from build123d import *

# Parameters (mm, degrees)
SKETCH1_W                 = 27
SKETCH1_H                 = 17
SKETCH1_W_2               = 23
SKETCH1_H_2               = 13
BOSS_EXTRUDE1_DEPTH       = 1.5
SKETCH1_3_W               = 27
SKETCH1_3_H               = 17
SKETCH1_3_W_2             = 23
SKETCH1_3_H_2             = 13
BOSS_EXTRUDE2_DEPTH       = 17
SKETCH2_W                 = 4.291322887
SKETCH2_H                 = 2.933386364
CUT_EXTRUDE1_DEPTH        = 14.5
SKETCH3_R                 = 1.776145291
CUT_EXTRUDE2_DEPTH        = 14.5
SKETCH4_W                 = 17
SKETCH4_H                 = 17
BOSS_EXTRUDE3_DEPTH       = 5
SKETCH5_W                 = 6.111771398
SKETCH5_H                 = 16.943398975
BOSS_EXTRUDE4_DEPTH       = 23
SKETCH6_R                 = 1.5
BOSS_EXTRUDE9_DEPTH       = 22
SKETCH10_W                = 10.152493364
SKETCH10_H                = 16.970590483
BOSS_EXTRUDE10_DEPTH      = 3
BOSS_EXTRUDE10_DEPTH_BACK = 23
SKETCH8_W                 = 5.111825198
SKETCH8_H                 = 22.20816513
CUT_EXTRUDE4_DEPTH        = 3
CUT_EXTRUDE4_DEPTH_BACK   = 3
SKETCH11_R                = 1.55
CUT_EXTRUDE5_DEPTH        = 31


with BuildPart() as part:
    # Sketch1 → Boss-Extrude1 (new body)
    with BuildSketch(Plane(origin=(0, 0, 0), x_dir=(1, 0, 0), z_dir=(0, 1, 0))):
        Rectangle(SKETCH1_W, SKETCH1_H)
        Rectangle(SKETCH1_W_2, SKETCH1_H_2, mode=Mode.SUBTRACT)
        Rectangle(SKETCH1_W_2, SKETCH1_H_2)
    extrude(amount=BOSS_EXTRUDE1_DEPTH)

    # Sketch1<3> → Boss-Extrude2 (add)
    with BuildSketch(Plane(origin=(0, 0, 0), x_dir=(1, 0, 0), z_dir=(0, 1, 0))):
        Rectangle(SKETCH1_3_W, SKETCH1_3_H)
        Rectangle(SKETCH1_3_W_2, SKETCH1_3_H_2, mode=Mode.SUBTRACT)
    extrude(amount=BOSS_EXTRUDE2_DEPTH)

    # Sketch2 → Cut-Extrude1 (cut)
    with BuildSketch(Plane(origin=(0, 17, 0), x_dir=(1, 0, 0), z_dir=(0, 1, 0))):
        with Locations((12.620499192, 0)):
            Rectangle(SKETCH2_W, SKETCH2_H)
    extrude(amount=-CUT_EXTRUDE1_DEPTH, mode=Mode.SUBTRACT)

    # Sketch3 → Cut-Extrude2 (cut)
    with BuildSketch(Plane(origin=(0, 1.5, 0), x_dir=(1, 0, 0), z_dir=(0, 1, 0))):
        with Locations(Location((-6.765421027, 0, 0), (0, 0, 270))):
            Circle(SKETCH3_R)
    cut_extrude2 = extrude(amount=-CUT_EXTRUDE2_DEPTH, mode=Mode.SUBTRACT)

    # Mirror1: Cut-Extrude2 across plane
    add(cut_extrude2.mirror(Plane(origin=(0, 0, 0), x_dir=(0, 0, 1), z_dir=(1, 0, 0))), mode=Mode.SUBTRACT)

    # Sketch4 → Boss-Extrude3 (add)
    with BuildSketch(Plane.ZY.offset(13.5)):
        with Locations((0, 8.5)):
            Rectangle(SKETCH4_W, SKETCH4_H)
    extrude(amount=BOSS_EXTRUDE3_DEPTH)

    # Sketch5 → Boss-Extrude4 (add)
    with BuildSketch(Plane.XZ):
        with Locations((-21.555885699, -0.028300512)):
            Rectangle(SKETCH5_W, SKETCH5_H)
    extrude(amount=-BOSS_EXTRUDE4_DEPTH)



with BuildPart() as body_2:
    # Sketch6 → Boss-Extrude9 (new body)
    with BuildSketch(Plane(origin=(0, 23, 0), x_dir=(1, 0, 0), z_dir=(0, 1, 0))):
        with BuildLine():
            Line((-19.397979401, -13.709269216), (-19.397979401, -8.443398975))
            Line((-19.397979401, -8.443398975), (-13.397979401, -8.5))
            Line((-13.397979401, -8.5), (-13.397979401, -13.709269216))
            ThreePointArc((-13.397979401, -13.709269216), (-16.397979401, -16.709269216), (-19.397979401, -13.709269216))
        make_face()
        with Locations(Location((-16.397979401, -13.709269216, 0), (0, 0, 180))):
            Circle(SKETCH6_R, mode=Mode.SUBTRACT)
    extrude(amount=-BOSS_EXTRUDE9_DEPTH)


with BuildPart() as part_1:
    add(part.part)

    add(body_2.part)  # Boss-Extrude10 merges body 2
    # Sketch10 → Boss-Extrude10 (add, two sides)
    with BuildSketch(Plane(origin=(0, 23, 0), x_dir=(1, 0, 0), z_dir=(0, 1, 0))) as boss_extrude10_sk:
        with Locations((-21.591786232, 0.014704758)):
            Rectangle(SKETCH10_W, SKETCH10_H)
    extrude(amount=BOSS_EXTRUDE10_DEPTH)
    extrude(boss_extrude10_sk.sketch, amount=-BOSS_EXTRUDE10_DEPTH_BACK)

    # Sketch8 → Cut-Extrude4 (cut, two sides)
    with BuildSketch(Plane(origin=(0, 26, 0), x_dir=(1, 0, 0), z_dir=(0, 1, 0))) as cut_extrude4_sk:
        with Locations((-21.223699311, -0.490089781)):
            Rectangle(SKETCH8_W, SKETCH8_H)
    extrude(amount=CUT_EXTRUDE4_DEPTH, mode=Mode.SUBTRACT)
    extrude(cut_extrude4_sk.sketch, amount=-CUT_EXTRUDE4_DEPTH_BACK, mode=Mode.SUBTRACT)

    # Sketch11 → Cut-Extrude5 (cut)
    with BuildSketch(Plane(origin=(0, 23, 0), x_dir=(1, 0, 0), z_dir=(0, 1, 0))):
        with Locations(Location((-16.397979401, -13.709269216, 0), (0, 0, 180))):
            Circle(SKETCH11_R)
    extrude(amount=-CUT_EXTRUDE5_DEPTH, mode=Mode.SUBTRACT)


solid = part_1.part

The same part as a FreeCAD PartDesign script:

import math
import FreeCAD as App
import Part
import Sketcher
Q = App.Units.Quantity

doc = App.newDocument("Part")
body = doc.addObject("PartDesign::Body", "Body")

# Sketch on XZ plane
sketch1 = body.newObject("Sketcher::SketchObject", "Sketch")
sketch1.AttachmentSupport = (doc.getObject("XZ_Plane"), [""])
sketch1.MapMode = "FlatFace"
sketch1.addGeometry([
    Part.LineSegment(App.Vector(-14, -8, 0), App.Vector(-14, 8, 0)),
    Part.LineSegment(App.Vector(-14, 8, 0), App.Vector(14, 8, 0)),
    Part.LineSegment(App.Vector(14, 8, 0), App.Vector(14, -8, 0)),
    Part.LineSegment(App.Vector(14, -8, 0), App.Vector(-14, -8, 0)),
], False)
sketch1.addConstraint([
    Sketcher.Constraint("Coincident", 0, 2, 1, 1),
    Sketcher.Constraint("Coincident", 1, 2, 2, 1),
    Sketcher.Constraint("Coincident", 2, 2, 3, 1),
    Sketcher.Constraint("Coincident", 3, 2, 0, 1),
    Sketcher.Constraint("Vertical", 0),
    Sketcher.Constraint("Horizontal", 1),
    Sketcher.Constraint("Vertical", 2),
    Sketcher.Constraint("Horizontal", 3),
    Sketcher.Constraint("Symmetric", 0, 2, 2, 2, -1, 1),
    Sketcher.Constraint("DistanceX", 1, 1, 1, 2, Q("27 mm")),
    Sketcher.Constraint("DistanceY", 0, 1, 0, 2, Q("17 mm")),
])
pad1 = body.newObject("PartDesign::Pad", "Pad")
pad1.Profile = sketch1
pad1.Length = 1.5
pad1.Reversed = True

# Sketch on XZ plane
sketch2 = body.newObject("Sketcher::SketchObject", "Sketch001")
sketch2.AttachmentSupport = (doc.getObject("XZ_Plane"), [""])
sketch2.MapMode = "FlatFace"
sketch2.addGeometry([
    Part.LineSegment(App.Vector(-14, -8, 0), App.Vector(-14, 8, 0)),  # 0
    Part.LineSegment(App.Vector(-14, 8, 0), App.Vector(14, 8, 0)),  # 1
    Part.LineSegment(App.Vector(14, 8, 0), App.Vector(14, -8, 0)),  # 2
    Part.LineSegment(App.Vector(14, -8, 0), App.Vector(-14, -8, 0)),  # 3
    Part.LineSegment(App.Vector(12, 6, 0), App.Vector(-12, 6, 0)),  # 4
    Part.LineSegment(App.Vector(-12, 6, 0), App.Vector(-12, -6, 0)),  # 5
    Part.LineSegment(App.Vector(-12, -6, 0), App.Vector(12, -6, 0)),  # 6
    Part.LineSegment(App.Vector(12, -6, 0), App.Vector(12, 6, 0)),  # 7
], False)
sketch2.addConstraint([
    Sketcher.Constraint("Coincident", 0, 2, 1, 1),
    Sketcher.Constraint("Coincident", 1, 2, 2, 1),
    Sketcher.Constraint("Coincident", 2, 2, 3, 1),
    Sketcher.Constraint("Coincident", 3, 2, 0, 1),
    Sketcher.Constraint("Coincident", 4, 2, 5, 1),
    Sketcher.Constraint("Coincident", 5, 2, 6, 1),
    Sketcher.Constraint("Coincident", 6, 2, 7, 1),
    Sketcher.Constraint("Coincident", 7, 2, 4, 1),
    Sketcher.Constraint("Vertical", 0),
    Sketcher.Constraint("Horizontal", 1),
    Sketcher.Constraint("Vertical", 2),
    Sketcher.Constraint("Horizontal", 3),
    Sketcher.Constraint("Horizontal", 4),
    Sketcher.Constraint("Vertical", 5),
    Sketcher.Constraint("Horizontal", 6),
    Sketcher.Constraint("Vertical", 7),
    Sketcher.Constraint("Symmetric", 0, 2, 2, 2, -1, 1),
    Sketcher.Constraint("Symmetric", 4, 2, 6, 2, -1, 1),
    Sketcher.Constraint("DistanceX", 1, 1, 1, 2, Q("27 mm")),
    Sketcher.Constraint("DistanceX", 4, 2, 4, 1, Q("23 mm")),
    Sketcher.Constraint("DistanceY", 0, 1, 0, 2, Q("17 mm")),
    Sketcher.Constraint("DistanceY", 5, 2, 5, 1, Q("13 mm")),
])
pad2 = body.newObject("PartDesign::Pad", "Pad001")
pad2.Profile = sketch2
pad2.Length = 17
pad2.Reversed = True

# Sketch on XZ plane
sketch3 = body.newObject("Sketcher::SketchObject", "Sketch002")
sketch3.AttachmentSupport = (doc.getObject("XZ_Plane"), [""])
sketch3.MapMode = "FlatFace"
sketch3.AttachmentOffset = App.Placement(App.Vector(0, 0, -17), App.Rotation())
sketch3.addGeometry([
    Part.LineSegment(App.Vector(10.5, -1.5, 0), App.Vector(10.5, 1.5, 0)),
    Part.LineSegment(App.Vector(10.5, 1.5, 0), App.Vector(14.8, 1.5, 0)),
    Part.LineSegment(App.Vector(14.8, 1.5, 0), App.Vector(14.8, -1.5, 0)),
    Part.LineSegment(App.Vector(14.8, -1.5, 0), App.Vector(10.5, -1.5, 0)),
], False)
sketch3.addConstraint([
    Sketcher.Constraint("Coincident", 0, 2, 1, 1),
    Sketcher.Constraint("Coincident", 1, 2, 2, 1),
    Sketcher.Constraint("Coincident", 2, 2, 3, 1),
    Sketcher.Constraint("Coincident", 3, 2, 0, 1),
    Sketcher.Constraint("Vertical", 0),
    Sketcher.Constraint("Horizontal", 1),
    Sketcher.Constraint("Vertical", 2),
    Sketcher.Constraint("Horizontal", 3),
    Sketcher.Constraint("DistanceX", 1, 1, 1, 2, Q("4.291323 mm")),
    Sketcher.Constraint("DistanceY", 0, 1, 0, 2, Q("2.933386 mm")),
    Sketcher.Constraint("DistanceX", -1, 1, 1, 2, Q("14.766161 mm")),
    Sketcher.Constraint("DistanceY", -1, 1, 0, 2, Q("1.466693 mm")),
])
pocket1 = body.newObject("PartDesign::Pocket", "Pocket")
pocket1.Profile = sketch3
pocket1.Length = 14.5
pocket1.Reversed = True

# Sketch on XZ plane
sketch4 = body.newObject("Sketcher::SketchObject", "Sketch003")
sketch4.AttachmentSupport = (doc.getObject("XZ_Plane"), [""])
sketch4.MapMode = "FlatFace"
sketch4.AttachmentOffset = App.Placement(App.Vector(0, 0, -1.5), App.Rotation())
sketch4.addGeometry(Part.Circle(App.Vector(-6.8, 0, 0), App.Vector(0, 0, 1), 1.8), False)
sketch4.addConstraint([
    Sketcher.Constraint("PointOnObject", 0, 3, -1),
    Sketcher.Constraint("Diameter", 0, Q("3.552291 mm")),
    Sketcher.Constraint("DistanceX", 0, 3, -1, 1, Q("6.765421 mm")),
])
pocket2 = body.newObject("PartDesign::Pocket", "Pocket001")
pocket2.Profile = sketch4
pocket2.Length = 14.5
pocket2.Reversed = True
doc.recompute()

mirrored = body.newObject("PartDesign::Mirrored", "Mirrored")
mirrored.Originals = [pocket2]
mirrored.MirrorPlane = (doc.getObject("YZ_Plane"), [""])
body.Tip = mirrored

# Sketch on YZ plane
sketch5 = body.newObject("Sketcher::SketchObject", "Sketch004")
sketch5.AttachmentSupport = (doc.getObject("YZ_Plane"), [""])
sketch5.MapMode = "FlatFace"
sketch5.AttachmentOffset = App.Placement(App.Vector(0, 0, -13.5), App.Rotation())
sketch5.addGeometry([
    Part.LineSegment(App.Vector(17, -8, 0), App.Vector(0, -8, 0)),
    Part.LineSegment(App.Vector(0, -8, 0), App.Vector(0, 8, 0)),
    Part.LineSegment(App.Vector(0, 8, 0), App.Vector(17, 8, 0)),
    Part.LineSegment(App.Vector(17, 8, 0), App.Vector(17, -8, 0)),
], False)
sketch5.addConstraint([
    Sketcher.Constraint("Coincident", 0, 2, 1, 1),
    Sketcher.Constraint("Coincident", 1, 2, 2, 1),
    Sketcher.Constraint("Coincident", 2, 2, 3, 1),
    Sketcher.Constraint("Coincident", 3, 2, 0, 1),
    Sketcher.Constraint("Horizontal", 0),
    Sketcher.Constraint("Vertical", 1),
    Sketcher.Constraint("Horizontal", 2),
    Sketcher.Constraint("Vertical", 3),
    Sketcher.Constraint("Symmetric", 0, 2, 1, 2, -1, 1),
    Sketcher.Constraint("Equal", 2, 1),
    Sketcher.Constraint("DistanceX", 0, 2, 0, 1, Q("17 mm")),
])
pad3 = body.newObject("PartDesign::Pad", "Pad002")
pad3.Profile = sketch5
pad3.Length = 5
pad3.Reversed = True

# Sketch on XZ plane
sketch6 = body.newObject("Sketcher::SketchObject", "Sketch005")
sketch6.AttachmentSupport = (doc.getObject("XZ_Plane"), [""])
sketch6.MapMode = "FlatFace"
sketch6.addGeometry([
    Part.LineSegment(App.Vector(-25, 8, 0), App.Vector(-25, -8, 0)),
    Part.LineSegment(App.Vector(-25, -8, 0), App.Vector(-18, -8, 0)),
    Part.LineSegment(App.Vector(-18, -8, 0), App.Vector(-18, 8, 0)),
    Part.LineSegment(App.Vector(-18, 8, 0), App.Vector(-25, 8, 0)),
], False)
sketch6.addConstraint([
    Sketcher.Constraint("Coincident", 0, 2, 1, 1),
    Sketcher.Constraint("Coincident", 1, 2, 2, 1),
    Sketcher.Constraint("Coincident", 2, 2, 3, 1),
    Sketcher.Constraint("Coincident", 3, 2, 0, 1),
    Sketcher.Constraint("Vertical", 0),
    Sketcher.Constraint("Horizontal", 1),
    Sketcher.Constraint("Vertical", 2),
    Sketcher.Constraint("Horizontal", 3),
    Sketcher.Constraint("DistanceY", 0, 2, -1, 1, Q("8.5 mm")),
    Sketcher.Constraint("DistanceX", 1, 2, -1, 1, Q("18.5 mm")),
    Sketcher.Constraint("DistanceY", 0, 2, 0, 1, Q("16.943399 mm")),
    Sketcher.Constraint("DistanceX", 1, 1, 1, 2, Q("6.111771 mm")),
])
pad4 = body.newObject("PartDesign::Pad", "Pad003")
pad4.Profile = sketch6
pad4.Length = 23
pad4.Reversed = True
body2 = doc.addObject("PartDesign::Body", "Body001")

# Sketch on XZ plane
sketch7 = body2.newObject("Sketcher::SketchObject", "Sketch006")
sketch7.AttachmentSupport = (doc.getObject("XZ_Plane001"), [""])
sketch7.MapMode = "FlatFace"
sketch7.AttachmentOffset = App.Placement(App.Vector(0, 0, -23), App.Rotation())
sketch7.addGeometry([
    Part.LineSegment(App.Vector(-19.4, 8.4, 0), App.Vector(-19.4, 13.7, 0)),  # 0
    Part.ArcOfCircle(Part.Circle(App.Vector(-16.4, 13.7, 0), App.Vector(0, 0, 1), 3), math.radians(0), math.radians(180)),  # 1
    Part.LineSegment(App.Vector(-13.4, 13.7, 0), App.Vector(-13.4, 8.5, 0)),  # 2
    Part.LineSegment(App.Vector(-13.4, 8.5, 0), App.Vector(-19.4, 8.4, 0)),  # 3
    Part.Circle(App.Vector(-16.4, 13.7, 0), App.Vector(0, 0, 1), 1.5),  # 4
], False)
sketch7.addConstraint([
    Sketcher.Constraint("Tangent", 0, 2, 1, 2),
    Sketcher.Constraint("Tangent", 1, 1, 2, 1),
    Sketcher.Constraint("Coincident", 2, 2, 3, 1),
    Sketcher.Constraint("Coincident", 3, 2, 0, 1),
    Sketcher.Constraint("Vertical", 0),
    Sketcher.Constraint("Vertical", 2),
    Sketcher.Constraint("Coincident", 4, 3, 1, 3),
    Sketcher.Constraint("Diameter", 4, Q("3 mm")),
    Sketcher.Constraint("Radius", 1, Q("3 mm")),
    Sketcher.Constraint("DistanceY", -1, 1, 2, 2, Q("8.5 mm")),
    Sketcher.Constraint("DistanceY", 0, 1, 0, 2, Q("5.26587 mm")),
    Sketcher.Constraint("DistanceY", 2, 2, 2, 1, Q("5.209269 mm")),
    Sketcher.Constraint("DistanceX", 1, 3, -1, 1, Q("16.397979 mm")),
])
pad5 = body2.newObject("PartDesign::Pad", "Pad004")
pad5.Profile = sketch7
pad5.Length = 22
doc.recompute()

boolean = body.newObject("PartDesign::Boolean", "Boolean")
boolean.Type = "Fuse"
boolean.addObjects([body2])

# Sketch on XZ plane
sketch8 = body.newObject("Sketcher::SketchObject", "Sketch007")
sketch8.AttachmentSupport = (doc.getObject("XZ_Plane"), [""])
sketch8.MapMode = "FlatFace"
sketch8.AttachmentOffset = App.Placement(App.Vector(0, 0, -23), App.Rotation())
sketch8.addGeometry([
    Part.LineSegment(App.Vector(-27, -8, 0), App.Vector(-27, 8, 0)),
    Part.LineSegment(App.Vector(-27, 8, 0), App.Vector(-17, 8, 0)),
    Part.LineSegment(App.Vector(-17, 8, 0), App.Vector(-17, -8, 0)),
    Part.LineSegment(App.Vector(-17, -8, 0), App.Vector(-27, -8, 0)),
], False)
sketch8.addConstraint([
    Sketcher.Constraint("Coincident", 0, 2, 1, 1),
    Sketcher.Constraint("Coincident", 1, 2, 2, 1),
    Sketcher.Constraint("Coincident", 2, 2, 3, 1),
    Sketcher.Constraint("Coincident", 3, 2, 0, 1),
    Sketcher.Constraint("Vertical", 0),
    Sketcher.Constraint("Horizontal", 1),
    Sketcher.Constraint("Vertical", 2),
    Sketcher.Constraint("Horizontal", 3),
    Sketcher.Constraint("DistanceY", 2, 2, -1, 1, Q("8.5 mm")),
    Sketcher.Constraint("DistanceY", 0, 1, 0, 2, Q("16.97059 mm")),
    Sketcher.Constraint("DistanceX", 1, 1, 1, 2, Q("10.152493 mm")),
    Sketcher.Constraint("DistanceX", 1, 2, -1, 1, Q("16.51554 mm")),
])
pad6 = body.newObject("PartDesign::Pad", "Pad005")
pad6.Profile = sketch8
pad6.Type = "TwoLengths"
pad6.Length = 3
pad6.Length2 = 23
pad6.Reversed = True

# Sketch on XZ plane
sketch9 = body.newObject("Sketcher::SketchObject", "Sketch008")
sketch9.AttachmentSupport = (doc.getObject("XZ_Plane"), [""])
sketch9.MapMode = "FlatFace"
sketch9.AttachmentOffset = App.Placement(App.Vector(0, 0, -26), App.Rotation())
sketch9.addGeometry([
    Part.LineSegment(App.Vector(-24, -11, 0), App.Vector(-24, 12, 0)),
    Part.LineSegment(App.Vector(-24, 12, 0), App.Vector(-19, 12, 0)),
    Part.LineSegment(App.Vector(-19, 12, 0), App.Vector(-19, -11, 0)),
    Part.LineSegment(App.Vector(-19, -11, 0), App.Vector(-24, -11, 0)),
], False)
sketch9.addConstraint([
    Sketcher.Constraint("Coincident", 0, 2, 1, 1),
    Sketcher.Constraint("Coincident", 1, 2, 2, 1),
    Sketcher.Constraint("Coincident", 2, 2, 3, 1),
    Sketcher.Constraint("Coincident", 3, 2, 0, 1),
    Sketcher.Constraint("Vertical", 0),
    Sketcher.Constraint("Horizontal", 1),
    Sketcher.Constraint("Vertical", 2),
    Sketcher.Constraint("Horizontal", 3),
    Sketcher.Constraint("DistanceX", 1, 1, 1, 2, Q("5.111825 mm")),
    Sketcher.Constraint("DistanceY", 0, 1, 0, 2, Q("22.208165 mm")),
    Sketcher.Constraint("DistanceX", 0, 2, -1, 1, Q("23.779612 mm")),
    Sketcher.Constraint("DistanceY", -1, 1, 0, 2, Q("11.594172 mm")),
])
pocket3 = body.newObject("PartDesign::Pocket", "Pocket002")
pocket3.Profile = sketch9
pocket3.Type = "TwoLengths"
pocket3.Length = 3
pocket3.Length2 = 3

# Sketch on XZ plane
sketch10 = body.newObject("Sketcher::SketchObject", "Sketch009")
sketch10.AttachmentSupport = (doc.getObject("XZ_Plane"), [""])
sketch10.MapMode = "FlatFace"
sketch10.AttachmentOffset = App.Placement(App.Vector(0, 0, -23), App.Rotation())
sketch10.addGeometry(Part.Circle(App.Vector(-16.4, 13.7, 0), App.Vector(0, 0, 1), 1.6), False)
sketch10.addConstraint([
    Sketcher.Constraint("Diameter", 0, Q("3.1 mm")),
    Sketcher.Constraint("DistanceX", 0, 3, -1, 1, Q("16.397979 mm")),
    Sketcher.Constraint("DistanceY", -1, 1, 0, 3, Q("13.709269 mm")),
])
pocket4 = body.newObject("PartDesign::Pocket", "Pocket003")
pocket4.Profile = sketch10
pocket4.Length = 31
pocket4.Reversed = True

doc.recompute()
